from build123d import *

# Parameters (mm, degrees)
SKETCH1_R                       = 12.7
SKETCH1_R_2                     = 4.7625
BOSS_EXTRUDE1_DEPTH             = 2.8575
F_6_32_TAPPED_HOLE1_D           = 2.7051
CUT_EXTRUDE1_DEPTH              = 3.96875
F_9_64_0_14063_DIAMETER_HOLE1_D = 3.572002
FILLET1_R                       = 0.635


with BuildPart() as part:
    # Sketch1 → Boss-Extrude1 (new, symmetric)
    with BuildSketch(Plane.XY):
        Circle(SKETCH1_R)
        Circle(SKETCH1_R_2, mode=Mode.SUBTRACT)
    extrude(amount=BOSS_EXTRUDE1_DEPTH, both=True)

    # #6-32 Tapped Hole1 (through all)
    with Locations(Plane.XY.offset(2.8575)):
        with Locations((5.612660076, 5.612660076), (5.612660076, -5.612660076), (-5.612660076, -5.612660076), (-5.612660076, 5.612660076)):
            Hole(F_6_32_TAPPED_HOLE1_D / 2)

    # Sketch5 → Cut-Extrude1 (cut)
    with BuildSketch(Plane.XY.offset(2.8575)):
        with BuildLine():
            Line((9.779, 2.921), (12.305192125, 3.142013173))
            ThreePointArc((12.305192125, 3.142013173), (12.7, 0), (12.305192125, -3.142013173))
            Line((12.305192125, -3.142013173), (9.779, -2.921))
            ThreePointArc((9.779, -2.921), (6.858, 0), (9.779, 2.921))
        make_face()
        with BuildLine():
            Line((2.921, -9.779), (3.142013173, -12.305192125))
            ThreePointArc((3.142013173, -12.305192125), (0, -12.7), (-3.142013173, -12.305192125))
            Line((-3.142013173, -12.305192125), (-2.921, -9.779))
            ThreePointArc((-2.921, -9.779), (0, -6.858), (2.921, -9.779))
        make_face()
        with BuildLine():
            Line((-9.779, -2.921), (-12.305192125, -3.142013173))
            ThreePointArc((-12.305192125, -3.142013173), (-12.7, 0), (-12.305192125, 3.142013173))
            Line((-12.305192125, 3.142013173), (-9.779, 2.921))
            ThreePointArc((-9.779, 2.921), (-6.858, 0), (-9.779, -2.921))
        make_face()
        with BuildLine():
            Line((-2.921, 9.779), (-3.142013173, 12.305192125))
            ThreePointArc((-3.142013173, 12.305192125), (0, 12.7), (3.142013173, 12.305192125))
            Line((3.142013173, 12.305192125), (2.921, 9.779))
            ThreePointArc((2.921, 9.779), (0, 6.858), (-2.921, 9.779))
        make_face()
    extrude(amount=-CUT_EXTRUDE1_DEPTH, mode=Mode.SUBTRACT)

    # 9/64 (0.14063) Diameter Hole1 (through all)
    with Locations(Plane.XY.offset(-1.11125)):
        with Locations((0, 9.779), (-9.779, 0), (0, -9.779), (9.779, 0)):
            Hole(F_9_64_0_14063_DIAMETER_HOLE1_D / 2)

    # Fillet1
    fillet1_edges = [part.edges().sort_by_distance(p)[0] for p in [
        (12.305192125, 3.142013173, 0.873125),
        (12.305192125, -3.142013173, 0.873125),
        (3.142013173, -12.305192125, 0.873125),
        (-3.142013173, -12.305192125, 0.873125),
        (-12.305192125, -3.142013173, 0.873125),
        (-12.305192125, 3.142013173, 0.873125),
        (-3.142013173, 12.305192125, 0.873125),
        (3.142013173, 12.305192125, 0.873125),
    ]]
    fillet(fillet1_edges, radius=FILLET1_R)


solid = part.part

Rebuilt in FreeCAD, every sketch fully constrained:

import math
import FreeCAD as App
import Part
import Sketcher
Q = App.Units.Quantity


def edges_at(feature, points):
    """Names of the edges that pass closest to the given points."""
    edges = feature.Shape.Edges
    near = lambda p: min(range(len(edges)), key=lambda i: edges[i].distToShape(Part.Vertex(*p))[0])
    return sorted({f"Edge{near(p) + 1}" for p in points})

doc = App.newDocument("Part")
params = doc.addObject("Spreadsheet::Sheet", "Params")
for row, (alias, value) in enumerate([
    ("sketch1_diameter", "1 in"),
    ("sketch1_diameter2", "0.375 in"),
    ("pad1_length", "0.225 in"),
    ("hole_diameter", "0.1065 in"),
    ("sketch3_radius", "0.5 in"),
    ("sketch3_radius2", "0.115 in"),
    ("pocket1_length", "0.15625 in"),
    ("hole2_diameter", "3.572002 mm"),
    ("fillet_radius", "0.025 in"),
], start=1):
    params.set(f"A{row}", alias)
    params.set(f"B{row}", "=" + value)
    params.setAlias(f"B{row}", alias)

body = doc.addObject("PartDesign::Body", "Body")

# Sketch on XY plane
sketch1 = doc.addObject("Sketcher::SketchObject", "Sketch")
body.addObject(sketch1)
sketch1.AttachmentSupport = (doc.XY_Plane, [""])
sketch1.MapMode = "FlatFace"
sketch1.addGeometry([
    Part.Circle(App.Vector(0, 0, 0), App.Vector(0, 0, 1), 12.7),
    Part.Circle(App.Vector(0, 0, 0), App.Vector(0, 0, 1), 4.8),
], False)
sketch1.addConstraint([
    Sketcher.Constraint("Coincident", 0, 3, -1, 1),
    Sketcher.Constraint("Coincident", 1, 3, -1, 1),
    Sketcher.Constraint("Diameter", 0, Q("1 in")),
    Sketcher.Constraint("Diameter", 1, Q("0.375 in")),
])
sketch1.setExpression("Constraints[2]", "Params.sketch1_diameter")
sketch1.setExpression("Constraints[3]", "Params.sketch1_diameter2")
pad1 = doc.addObject("PartDesign::Pad", "Pad")
body.addObject(pad1)
pad1.Profile = sketch1
pad1.setExpression("Length", "Params.pad1_length")
pad1.Midplane = True

# Sketch on XY plane
sketch2 = doc.addObject("Sketcher::SketchObject", "Sketch001")
body.addObject(sketch2)
sketch2.AttachmentSupport = (doc.XY_Plane, [""])
sketch2.MapMode = "FlatFace"
sketch2.AttachmentOffset = App.Placement(App.Vector(0, 0, 0.1125 * 25.4), App.Rotation())
sketch2.addGeometry([
    Part.Circle(App.Vector(5.6, 5.6, 0), App.Vector(0, 0, 1), 1.4),
    Part.Circle(App.Vector(5.6, -5.6, 0), App.Vector(0, 0, 1), 1.4),
    Part.Circle(App.Vector(-5.6, -5.6, 0), App.Vector(0, 0, 1), 1.4),
    Part.Circle(App.Vector(-5.6, 5.6, 0), App.Vector(0, 0, 1), 1.4),
], False)
sketch2.addConstraint([
    Sketcher.Constraint("Equal", 0, 1),
    Sketcher.Constraint("Equal", 1, 2),
    Sketcher.Constraint("Equal", 2, 3),
    Sketcher.Constraint("Symmetric", 0, 3, 2, 3, -1, 1),
    Sketcher.Constraint("Symmetric", 1, 3, 3, 3, -1, 1),
    Sketcher.Constraint("Symmetric", 1, 3, 2, 3, -2),
    Sketcher.Constraint("Diameter", 0, Q("0.1065 in")),
    Sketcher.Constraint("DistanceX", -1, 1, 0, 3, 5.61266),
    Sketcher.Constraint("DistanceY", -1, 1, 0, 3, 5.61266),
])
doc.recompute()
hole = doc.addObject("PartDesign::Hole", "Hole")
body.addObject(hole)
hole.Profile = sketch2
hole.ThreadType = "None"
hole.setExpression("Diameter", "Params.hole_diameter")
hole.DepthType = "ThroughAll"

# Sketch on XY plane
sketch3 = doc.addObject("Sketcher::SketchObject", "Sketch002")
body.addObject(sketch3)
sketch3.AttachmentSupport = (doc.XY_Plane, [""])
sketch3.MapMode = "FlatFace"
sketch3.AttachmentOffset = App.Placement(App.Vector(0, 0, 0.1125 * 25.4), App.Rotation())
sketch3.addGeometry([
    Part.LineSegment(App.Vector(12.3, 3.1, 0), App.Vector(9.8, 2.9, 0)),  # 0
    Part.ArcOfCircle(Part.Circle(App.Vector(9.8, 0, 0), App.Vector(0, 0, 1), 2.9), math.radians(90), math.radians(270)),  # 1
    Part.LineSegment(App.Vector(9.8, -2.9, 0), App.Vector(12.3, -3.1, 0)),  # 2
    Part.ArcOfCircle(Part.Circle(App.Vector(0, 0, 0), App.Vector(0, 0, 1), 12.7), math.radians(-14), math.radians(14)),  # 3
    Part.LineSegment(App.Vector(3.1, -12.3, 0), App.Vector(2.9, -9.8, 0)),  # 4
    Part.ArcOfCircle(Part.Circle(App.Vector(0, -9.8, 0), App.Vector(0, 0, 1), 2.9), math.radians(0), math.radians(180)),  # 5
    Part.LineSegment(App.Vector(-2.9, -9.8, 0), App.Vector(-3.1, -12.3, 0)),  # 6
    Part.ArcOfCircle(Part.Circle(App.Vector(0, 0, 0), App.Vector(0, 0, 1), 12.7), math.radians(-104), math.radians(-76)),  # 7
    Part.LineSegment(App.Vector(-12.3, -3.1, 0), App.Vector(-9.8, -2.9, 0)),  # 8
    Part.ArcOfCircle(Part.Circle(App.Vector(-9.8, 0, 0), App.Vector(0, 0, 1), 2.9), math.radians(-90), math.radians(90)),  # 9
    Part.LineSegment(App.Vector(-9.8, 2.9, 0), App.Vector(-12.3, 3.1, 0)),  # 10
    Part.ArcOfCircle(Part.Circle(App.Vector(0, 0, 0), App.Vector(0, 0, 1), 12.7), math.radians(166), math.radians(194)),  # 11
    Part.LineSegment(App.Vector(-3.1, 12.3, 0), App.Vector(-2.9, 9.8, 0)),  # 12
    Part.ArcOfCircle(Part.Circle(App.Vector(0, 9.8, 0), App.Vector(0, 0, 1), 2.9), math.radians(180), math.radians(360)),  # 13
    Part.LineSegment(App.Vector(2.9, 9.8, 0), App.Vector(3.1, 12.3, 0)),  # 14
    Part.ArcOfCircle(Part.Circle(App.Vector(0, 0, 0), App.Vector(0, 0, 1), 12.7), math.radians(76), math.radians(104)),  # 15
], False)
sketch3.addConstraint([
    Sketcher.Constraint("Coincident", 0, 2, 1, 1),
    Sketcher.Constraint("Coincident", 1, 2, 2, 1),
    Sketcher.Constraint("Coincident", 2, 2, 3, 1),
    Sketcher.Constraint("Coincident", 3, 2, 0, 1),
    Sketcher.Constraint("Coincident", 4, 2, 5, 1),
    Sketcher.Constraint("Coincident", 5, 2, 6, 1),
    Sketcher.Constraint("Coincident", 6, 2, 7, 1),
    Sketcher.Constraint("Coincident", 7, 2, 4, 1),
    Sketcher.Constraint("Coincident", 8, 2, 9, 1),
    Sketcher.Constraint("Coincident", 9, 2, 10, 1),
    Sketcher.Constraint("Coincident", 10, 2, 11, 1),
    Sketcher.Constraint("Coincident", 11, 2, 8, 1),
    Sketcher.Constraint("Coincident", 12, 2, 13, 1),
    Sketcher.Constraint("Coincident", 13, 2, 14, 1),
    Sketcher.Constraint("Coincident", 14, 2, 15, 1),
    Sketcher.Constraint("Coincident", 15, 2, 12, 1),
    Sketcher.Constraint("Coincident", 3, 3, -1, 1),
    Sketcher.Constraint("Coincident", 7, 3, -1, 1),
    Sketcher.Constraint("Coincident", 11, 3, -1, 1),
    Sketcher.Constraint("Coincident", 15, 3, -1, 1),
    Sketcher.Constraint("Equal", 1, 5),
    Sketcher.Constraint("Equal", 3, 7),
    Sketcher.Constraint("Equal", 5, 9),
    Sketcher.Constraint("Equal", 7, 11),
    Sketcher.Constraint("Equal", 9, 13),
    Sketcher.Constraint("Equal", 11, 15),
    Sketcher.Constraint("Symmetric", 1, 3, 9, 3, -1, 1),
    Sketcher.Constraint("Symmetric", 5, 3, 13, 3, -1, 1),
    Sketcher.Constraint("Symmetric", 4, 2, 5, 2, -2),
    Sketcher.Constraint("Symmetric", 1, 2, 8, 2, -2),
    Sketcher.Constraint("Perpendicular", 0, 4),
    Sketcher.Constraint("Perpendicular", 2, 6),
    Sketcher.Constraint("Perpendicular", 4, 8),
    Sketcher.Constraint("Perpendicular", 6, 10),
    Sketcher.Constraint("Perpendicular", 8, 12),
    Sketcher.Constraint("Perpendicular", 10, 14),
    Sketcher.Constraint("Horizontal", 5, 3, 4, 2),
    Sketcher.Constraint("Horizontal", 6, 2, 7, 2),
    Sketcher.Constraint("Horizontal", 3, 2, 10, 2),
    Sketcher.Constraint("Horizontal", 13, 3, 12, 2),
    Sketcher.Constraint("Horizontal", 12, 2, 13, 2),
    Sketcher.Constraint("Vertical", 1, 3, 0, 2),
    Sketcher.Constraint("Vertical", 0, 2, 1, 2),
    Sketcher.Constraint("Equal", 2, 4),
    Sketcher.Constraint("Radius", 3, Q("0.5 in")),
    Sketcher.Constraint("Angle", 0, Q("-175 deg")),
    Sketcher.Constraint("Radius", 1, Q("0.115 in")),
    Sketcher.Constraint("DistanceX", 9, 3, 1, 3, Q("0.77 in")),
])
sketch3.setExpression("Constraints[44]", "Params.sketch3_radius")
sketch3.setExpression("Constraints[46]", "Params.sketch3_radius2")
pocket1 = doc.addObject("PartDesign::Pocket", "Pocket")
body.addObject(pocket1)
pocket1.Profile = sketch3
pocket1.setExpression("Length", "Params.pocket1_length")

# Sketch on XY plane
sketch4 = doc.addObject("Sketcher::SketchObject", "Sketch003")
body.addObject(sketch4)
sketch4.AttachmentSupport = (doc.XY_Plane, [""])
sketch4.MapMode = "FlatFace"
sketch4.AttachmentOffset = App.Placement(App.Vector(0, 0, -1.11125), App.Rotation())
sketch4.addGeometry([
    Part.Circle(App.Vector(0, 9.8, 0), App.Vector(0, 0, 1), 1.8),
    Part.Circle(App.Vector(-9.8, 0, 0), App.Vector(0, 0, 1), 1.8),
    Part.Circle(App.Vector(0, -9.8, 0), App.Vector(0, 0, 1), 1.8),
    Part.Circle(App.Vector(9.8, 0, 0), App.Vector(0, 0, 1), 1.8),
], False)
sketch4.addConstraint([
    Sketcher.Constraint("Equal", 0, 1),
    Sketcher.Constraint("Equal", 1, 2),
    Sketcher.Constraint("Equal", 2, 3),
    Sketcher.Constraint("Symmetric", 0, 3, 2, 3, -1, 1),
    Sketcher.Constraint("Symmetric", 1, 3, 3, 3, -1, 1),
    Sketcher.Constraint("PointOnObject", 0, 3, -2),
    Sketcher.Constraint("PointOnObject", 1, 3, -1),
    Sketcher.Constraint("Diameter", 0, 3.572002),
    Sketcher.Constraint("DistanceY", 2, 3, 0, 3, Q("0.77 in")),
    Sketcher.Constraint("DistanceX", 1, 3, 3, 3, Q("0.77 in")),
])
doc.recompute()
hole2 = doc.addObject("PartDesign::Hole", "Hole001")
body.addObject(hole2)
hole2.Profile = sketch4
hole2.ThreadType = "None"
hole2.setExpression("Diameter", "Params.hole2_diameter")
hole2.DepthType = "ThroughAll"
doc.recompute()

fillet = doc.addObject("PartDesign::Fillet", "Fillet")
body.addObject(fillet)
fillet.Base = (hole2, edges_at(hole2, [
    (12.305, 3.142, 0.873),
    (12.305, -3.142, 0.873),
    (3.142, -12.305, 0.873),
    (-3.142, -12.305, 0.873),
    (-12.305, -3.142, 0.873),
    (-12.305, 3.142, 0.873),
    (-3.142, 12.305, 0.873),
    (3.142, 12.305, 0.873),
]))
fillet.setExpression("Radius", "Params.fillet_radius")

doc.recompute()
